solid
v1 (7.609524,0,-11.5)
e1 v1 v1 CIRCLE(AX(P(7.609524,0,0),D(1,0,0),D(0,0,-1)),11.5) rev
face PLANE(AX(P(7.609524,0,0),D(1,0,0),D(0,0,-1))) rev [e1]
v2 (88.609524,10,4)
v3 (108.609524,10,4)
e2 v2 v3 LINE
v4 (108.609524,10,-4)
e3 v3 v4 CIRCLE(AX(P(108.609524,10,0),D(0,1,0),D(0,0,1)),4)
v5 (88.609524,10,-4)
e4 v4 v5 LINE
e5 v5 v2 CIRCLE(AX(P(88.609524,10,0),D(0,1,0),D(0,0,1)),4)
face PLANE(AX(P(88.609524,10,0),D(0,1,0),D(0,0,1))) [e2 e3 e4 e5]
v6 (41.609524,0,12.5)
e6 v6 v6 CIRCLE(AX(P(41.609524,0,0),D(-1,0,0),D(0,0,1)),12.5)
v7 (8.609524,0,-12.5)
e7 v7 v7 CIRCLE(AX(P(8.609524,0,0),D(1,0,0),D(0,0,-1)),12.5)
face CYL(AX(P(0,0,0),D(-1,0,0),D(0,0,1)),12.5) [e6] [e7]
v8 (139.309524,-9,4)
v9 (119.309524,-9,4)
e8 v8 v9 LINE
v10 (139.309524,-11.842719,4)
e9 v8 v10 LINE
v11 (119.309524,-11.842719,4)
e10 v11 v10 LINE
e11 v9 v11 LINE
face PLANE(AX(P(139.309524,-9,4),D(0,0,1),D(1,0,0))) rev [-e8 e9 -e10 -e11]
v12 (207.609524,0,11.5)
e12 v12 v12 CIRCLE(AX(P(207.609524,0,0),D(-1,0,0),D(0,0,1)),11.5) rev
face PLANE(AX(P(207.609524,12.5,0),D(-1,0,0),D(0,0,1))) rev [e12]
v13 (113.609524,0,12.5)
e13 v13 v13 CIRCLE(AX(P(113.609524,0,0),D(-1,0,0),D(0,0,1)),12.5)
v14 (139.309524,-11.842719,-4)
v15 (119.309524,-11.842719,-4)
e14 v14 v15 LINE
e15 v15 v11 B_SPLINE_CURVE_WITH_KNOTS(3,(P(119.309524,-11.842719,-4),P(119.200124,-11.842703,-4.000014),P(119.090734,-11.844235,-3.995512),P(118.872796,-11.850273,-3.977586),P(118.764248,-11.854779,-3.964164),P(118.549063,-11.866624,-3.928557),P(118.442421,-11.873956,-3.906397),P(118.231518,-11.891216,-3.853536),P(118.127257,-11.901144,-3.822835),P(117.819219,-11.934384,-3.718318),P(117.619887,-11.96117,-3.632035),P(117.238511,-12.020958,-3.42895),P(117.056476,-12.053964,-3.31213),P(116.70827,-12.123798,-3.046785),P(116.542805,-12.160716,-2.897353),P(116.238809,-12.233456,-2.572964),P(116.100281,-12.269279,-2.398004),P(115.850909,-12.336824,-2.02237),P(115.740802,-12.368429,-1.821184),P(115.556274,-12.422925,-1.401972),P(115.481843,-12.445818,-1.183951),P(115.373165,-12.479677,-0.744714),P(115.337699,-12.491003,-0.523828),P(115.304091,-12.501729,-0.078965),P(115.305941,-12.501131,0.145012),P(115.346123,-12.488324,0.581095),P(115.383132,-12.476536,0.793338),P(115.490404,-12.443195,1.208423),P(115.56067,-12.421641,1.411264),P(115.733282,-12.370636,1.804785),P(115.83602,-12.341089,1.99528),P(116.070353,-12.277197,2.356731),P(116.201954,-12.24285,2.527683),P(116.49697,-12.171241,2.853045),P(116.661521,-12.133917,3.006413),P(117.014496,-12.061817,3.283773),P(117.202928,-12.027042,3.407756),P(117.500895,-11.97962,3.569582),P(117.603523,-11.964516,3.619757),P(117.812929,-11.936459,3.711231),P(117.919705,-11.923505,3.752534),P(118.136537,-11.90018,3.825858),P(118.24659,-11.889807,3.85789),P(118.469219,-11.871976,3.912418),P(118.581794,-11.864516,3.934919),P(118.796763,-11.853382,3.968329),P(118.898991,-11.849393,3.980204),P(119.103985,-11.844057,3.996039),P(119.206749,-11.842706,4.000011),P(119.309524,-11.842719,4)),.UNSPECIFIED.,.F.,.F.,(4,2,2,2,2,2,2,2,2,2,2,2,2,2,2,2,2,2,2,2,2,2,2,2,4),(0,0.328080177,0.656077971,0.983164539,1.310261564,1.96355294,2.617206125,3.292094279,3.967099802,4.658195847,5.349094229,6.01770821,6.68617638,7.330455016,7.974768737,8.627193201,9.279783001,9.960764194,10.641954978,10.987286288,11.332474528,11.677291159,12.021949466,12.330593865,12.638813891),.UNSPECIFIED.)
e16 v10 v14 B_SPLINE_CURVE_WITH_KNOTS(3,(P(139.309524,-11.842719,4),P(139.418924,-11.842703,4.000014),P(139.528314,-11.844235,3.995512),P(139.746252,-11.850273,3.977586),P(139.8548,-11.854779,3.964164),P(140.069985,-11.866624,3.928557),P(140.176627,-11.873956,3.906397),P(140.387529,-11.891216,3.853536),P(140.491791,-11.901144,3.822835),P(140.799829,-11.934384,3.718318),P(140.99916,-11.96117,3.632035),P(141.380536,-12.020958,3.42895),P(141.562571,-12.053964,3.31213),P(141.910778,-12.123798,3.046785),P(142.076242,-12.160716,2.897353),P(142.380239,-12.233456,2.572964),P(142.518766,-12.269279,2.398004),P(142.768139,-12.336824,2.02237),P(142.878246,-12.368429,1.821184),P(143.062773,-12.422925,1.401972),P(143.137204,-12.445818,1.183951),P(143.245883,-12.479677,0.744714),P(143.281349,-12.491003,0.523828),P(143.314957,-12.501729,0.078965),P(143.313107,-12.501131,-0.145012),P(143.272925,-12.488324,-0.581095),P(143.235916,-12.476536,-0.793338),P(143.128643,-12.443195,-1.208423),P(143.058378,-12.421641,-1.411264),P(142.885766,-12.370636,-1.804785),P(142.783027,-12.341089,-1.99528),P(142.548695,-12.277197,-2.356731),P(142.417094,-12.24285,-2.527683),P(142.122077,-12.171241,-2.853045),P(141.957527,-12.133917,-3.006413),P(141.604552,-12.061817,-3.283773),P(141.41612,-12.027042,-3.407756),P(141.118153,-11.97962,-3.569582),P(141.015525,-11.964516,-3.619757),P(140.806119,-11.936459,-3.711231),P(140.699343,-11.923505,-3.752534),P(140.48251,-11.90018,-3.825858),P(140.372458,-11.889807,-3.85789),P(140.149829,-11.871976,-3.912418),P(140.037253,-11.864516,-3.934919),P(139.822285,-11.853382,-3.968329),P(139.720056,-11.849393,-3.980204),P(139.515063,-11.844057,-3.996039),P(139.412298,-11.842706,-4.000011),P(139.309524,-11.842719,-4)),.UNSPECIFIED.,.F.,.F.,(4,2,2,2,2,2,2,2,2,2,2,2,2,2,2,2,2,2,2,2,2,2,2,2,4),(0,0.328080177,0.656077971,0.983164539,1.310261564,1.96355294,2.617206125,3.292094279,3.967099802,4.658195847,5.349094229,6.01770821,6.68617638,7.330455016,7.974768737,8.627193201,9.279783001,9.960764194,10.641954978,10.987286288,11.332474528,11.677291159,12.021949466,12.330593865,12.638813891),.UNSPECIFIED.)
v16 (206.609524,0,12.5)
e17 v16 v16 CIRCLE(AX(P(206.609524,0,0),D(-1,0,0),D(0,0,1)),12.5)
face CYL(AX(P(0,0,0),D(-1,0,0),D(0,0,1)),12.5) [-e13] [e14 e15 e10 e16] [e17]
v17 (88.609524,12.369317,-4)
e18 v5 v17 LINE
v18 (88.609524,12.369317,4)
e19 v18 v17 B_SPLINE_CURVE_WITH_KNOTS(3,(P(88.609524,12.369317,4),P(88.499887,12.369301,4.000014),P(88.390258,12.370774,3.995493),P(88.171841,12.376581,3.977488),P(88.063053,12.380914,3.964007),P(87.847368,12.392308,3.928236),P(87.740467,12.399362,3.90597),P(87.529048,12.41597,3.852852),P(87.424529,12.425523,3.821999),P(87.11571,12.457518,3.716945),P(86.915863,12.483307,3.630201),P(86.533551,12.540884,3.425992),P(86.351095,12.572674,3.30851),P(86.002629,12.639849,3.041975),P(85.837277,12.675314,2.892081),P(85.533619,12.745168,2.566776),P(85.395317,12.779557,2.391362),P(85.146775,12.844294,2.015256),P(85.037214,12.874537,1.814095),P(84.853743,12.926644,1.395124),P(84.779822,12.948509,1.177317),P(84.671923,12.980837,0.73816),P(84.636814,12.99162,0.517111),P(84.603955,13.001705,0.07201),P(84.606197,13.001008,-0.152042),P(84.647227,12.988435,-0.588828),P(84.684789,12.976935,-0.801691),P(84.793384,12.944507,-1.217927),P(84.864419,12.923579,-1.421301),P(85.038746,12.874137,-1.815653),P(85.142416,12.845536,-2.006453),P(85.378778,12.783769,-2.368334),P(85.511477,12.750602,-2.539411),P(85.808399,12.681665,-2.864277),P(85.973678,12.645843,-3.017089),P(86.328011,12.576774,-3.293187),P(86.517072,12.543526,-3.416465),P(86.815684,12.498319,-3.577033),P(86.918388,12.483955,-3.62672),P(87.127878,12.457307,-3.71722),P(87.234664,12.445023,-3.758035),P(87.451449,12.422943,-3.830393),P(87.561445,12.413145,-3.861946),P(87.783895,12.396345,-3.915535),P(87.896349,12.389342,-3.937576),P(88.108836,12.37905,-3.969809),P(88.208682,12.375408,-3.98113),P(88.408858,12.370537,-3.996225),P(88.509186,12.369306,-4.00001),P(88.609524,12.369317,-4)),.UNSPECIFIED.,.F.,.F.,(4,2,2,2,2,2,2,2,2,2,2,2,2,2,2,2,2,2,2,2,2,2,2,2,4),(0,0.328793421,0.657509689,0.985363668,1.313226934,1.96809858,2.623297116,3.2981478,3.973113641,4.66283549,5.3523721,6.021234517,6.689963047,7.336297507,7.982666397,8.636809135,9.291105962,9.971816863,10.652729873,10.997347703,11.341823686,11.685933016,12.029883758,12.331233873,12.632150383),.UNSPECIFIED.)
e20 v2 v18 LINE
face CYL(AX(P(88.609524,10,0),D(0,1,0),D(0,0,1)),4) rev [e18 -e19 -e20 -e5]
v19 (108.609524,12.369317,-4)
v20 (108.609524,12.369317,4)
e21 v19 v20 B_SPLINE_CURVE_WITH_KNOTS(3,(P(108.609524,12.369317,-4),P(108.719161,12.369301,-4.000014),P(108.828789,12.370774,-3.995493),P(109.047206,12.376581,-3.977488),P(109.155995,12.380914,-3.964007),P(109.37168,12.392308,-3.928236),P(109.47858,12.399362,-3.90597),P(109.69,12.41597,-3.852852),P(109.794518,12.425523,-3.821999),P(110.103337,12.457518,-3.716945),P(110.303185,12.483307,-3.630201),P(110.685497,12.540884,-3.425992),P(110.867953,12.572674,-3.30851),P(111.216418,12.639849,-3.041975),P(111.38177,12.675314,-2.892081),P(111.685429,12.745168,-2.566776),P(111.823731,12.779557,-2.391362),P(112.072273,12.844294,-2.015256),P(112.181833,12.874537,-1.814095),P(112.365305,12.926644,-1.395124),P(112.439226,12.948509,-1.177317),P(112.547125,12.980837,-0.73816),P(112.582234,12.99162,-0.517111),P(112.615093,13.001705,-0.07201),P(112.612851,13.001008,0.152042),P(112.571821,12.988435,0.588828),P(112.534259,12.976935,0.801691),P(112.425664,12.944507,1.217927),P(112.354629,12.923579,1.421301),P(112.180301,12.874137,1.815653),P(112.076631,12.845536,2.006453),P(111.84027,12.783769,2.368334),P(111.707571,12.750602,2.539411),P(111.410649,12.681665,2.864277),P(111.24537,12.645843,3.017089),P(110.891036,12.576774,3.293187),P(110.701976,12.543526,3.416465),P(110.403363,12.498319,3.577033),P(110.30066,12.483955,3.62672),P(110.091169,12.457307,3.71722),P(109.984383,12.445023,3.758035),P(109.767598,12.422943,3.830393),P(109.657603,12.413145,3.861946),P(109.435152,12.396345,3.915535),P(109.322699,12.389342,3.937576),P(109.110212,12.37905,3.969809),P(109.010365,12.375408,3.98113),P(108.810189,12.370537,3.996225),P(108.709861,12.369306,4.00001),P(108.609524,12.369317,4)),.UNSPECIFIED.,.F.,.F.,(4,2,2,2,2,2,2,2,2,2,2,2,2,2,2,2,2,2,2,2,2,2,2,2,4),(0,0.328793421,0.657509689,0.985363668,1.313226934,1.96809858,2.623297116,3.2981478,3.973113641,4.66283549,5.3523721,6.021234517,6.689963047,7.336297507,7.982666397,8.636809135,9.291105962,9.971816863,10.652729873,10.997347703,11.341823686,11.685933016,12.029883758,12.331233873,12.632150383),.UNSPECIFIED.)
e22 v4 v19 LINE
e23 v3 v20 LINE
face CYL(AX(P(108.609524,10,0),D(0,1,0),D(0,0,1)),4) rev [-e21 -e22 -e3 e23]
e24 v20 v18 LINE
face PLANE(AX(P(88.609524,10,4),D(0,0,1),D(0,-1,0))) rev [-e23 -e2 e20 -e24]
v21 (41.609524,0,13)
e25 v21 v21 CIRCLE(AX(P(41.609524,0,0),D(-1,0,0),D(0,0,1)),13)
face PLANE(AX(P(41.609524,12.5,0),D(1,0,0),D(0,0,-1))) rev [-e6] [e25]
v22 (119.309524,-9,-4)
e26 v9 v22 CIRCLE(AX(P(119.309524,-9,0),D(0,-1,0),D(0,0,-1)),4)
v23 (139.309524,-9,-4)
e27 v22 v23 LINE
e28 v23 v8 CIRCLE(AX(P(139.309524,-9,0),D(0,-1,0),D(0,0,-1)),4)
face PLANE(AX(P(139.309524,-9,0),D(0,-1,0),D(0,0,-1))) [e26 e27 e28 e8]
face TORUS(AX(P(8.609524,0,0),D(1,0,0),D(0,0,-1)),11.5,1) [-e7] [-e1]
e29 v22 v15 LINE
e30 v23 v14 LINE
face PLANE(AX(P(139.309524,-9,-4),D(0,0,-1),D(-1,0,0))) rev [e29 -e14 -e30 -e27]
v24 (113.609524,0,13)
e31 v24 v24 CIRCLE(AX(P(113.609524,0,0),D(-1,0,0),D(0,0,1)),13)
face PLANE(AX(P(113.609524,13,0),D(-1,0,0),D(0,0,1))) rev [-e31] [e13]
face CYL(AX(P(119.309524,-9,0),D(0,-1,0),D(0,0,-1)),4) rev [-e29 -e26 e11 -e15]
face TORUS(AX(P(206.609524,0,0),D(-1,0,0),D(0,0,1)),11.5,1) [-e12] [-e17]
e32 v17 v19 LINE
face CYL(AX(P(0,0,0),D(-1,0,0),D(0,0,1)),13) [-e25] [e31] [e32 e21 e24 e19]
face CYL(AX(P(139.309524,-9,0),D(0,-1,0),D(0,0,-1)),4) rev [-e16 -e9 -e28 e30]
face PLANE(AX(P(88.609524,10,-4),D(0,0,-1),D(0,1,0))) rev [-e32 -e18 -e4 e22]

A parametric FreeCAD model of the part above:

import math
import FreeCAD as App
import Part
import Sketcher


def edges_at(feature, points):
    """Names of the edges that pass closest to the given points."""
    edges = feature.Shape.Edges
    near = lambda p: min(range(len(edges)), key=lambda i: edges[i].distToShape(Part.Vertex(*p))[0])
    return sorted({f"Edge{near(p) + 1}" for p in points})

doc = App.newDocument("Part")
params = doc.addObject("Spreadsheet::Sheet", "Params")
for row, (alias, value) in enumerate([
    ("sketch1_width", "200 mm"),
    ("sketch1_width2", "94 mm"),
    ("sketch1_width3", "72 mm"),
    ("sketch1_height", "12.5 mm"),
    ("sketch1_height2", "0.5 mm"),
    ("revolution_angle", "360 deg"),
    ("sketch2_radius", "4 mm"),
    ("sketch2_width", "20 mm"),
    ("pocket1_length", "3.5 mm"),
    ("fillet_radius", "1 mm"),
    ("fillet2_radius", "1 mm"),
    ("sketch3_radius", "4 mm"),
    ("sketch3_width", "20 mm"),
    ("pocket2_length", "3 mm"),
], start=1):
    params.set(f"A{row}", alias)
    params.set(f"B{row}", "=" + value)
    params.setAlias(f"B{row}", alias)

body = doc.addObject("PartDesign::Body", "Body")

sketch1 = body.newObject("Sketcher::SketchObject", "Sketch")
sketch1.AttachmentSupport = (doc.getObject("XY_Plane"), [""])
sketch1.MapMode = "FlatFace"
sketch1.addGeometry([
    Part.LineSegment(App.Vector(7.6, 12.5, 0), App.Vector(7.6, 0, 0)),
    Part.LineSegment(App.Vector(7.6, 0, 0), App.Vector(207.6, 0, 0)),
    Part.LineSegment(App.Vector(207.6, 0, 0), App.Vector(207.6, 12.5, 0)),
    Part.LineSegment(App.Vector(207.6, 12.5, 0), App.Vector(113.6, 12.5, 0)),
    Part.LineSegment(App.Vector(113.6, 12.5, 0), App.Vector(113.6, 13, 0)),
    Part.LineSegment(App.Vector(113.6, 13, 0), App.Vector(41.6, 13, 0)),
    Part.LineSegment(App.Vector(41.6, 13, 0), App.Vector(41.6, 12.5, 0)),
    Part.LineSegment(App.Vector(41.6, 12.5, 0), App.Vector(7.6, 12.5, 0)),
], False)
sketch1.addConstraint([
    Sketcher.Constraint("Coincident", 0, 2, 1, 1),
    Sketcher.Constraint("Coincident", 1, 2, 2, 1),
    Sketcher.Constraint("Coincident", 2, 2, 3, 1),
    Sketcher.Constraint("Coincident", 3, 2, 4, 1),
    Sketcher.Constraint("Coincident", 4, 2, 5, 1),
    Sketcher.Constraint("Coincident", 5, 2, 6, 1),
    Sketcher.Constraint("Coincident", 6, 2, 7, 1),
    Sketcher.Constraint("Coincident", 7, 2, 0, 1),
    Sketcher.Constraint("Vertical", 0),
    Sketcher.Constraint("Horizontal", 1),
    Sketcher.Constraint("Vertical", 2),
    Sketcher.Constraint("Horizontal", 3),
    Sketcher.Constraint("Vertical", 4),
    Sketcher.Constraint("Horizontal", 5),
    Sketcher.Constraint("Vertical", 6),
    Sketcher.Constraint("Horizontal", 7),
    Sketcher.Constraint("PointOnObject", 0, 2, -1),
    Sketcher.Constraint("Horizontal", 3, 2, 6, 2),
    Sketcher.Constraint("DistanceX", 1, 1, 1, 2, 200.0),
    Sketcher.Constraint("DistanceX", 3, 2, 3, 1, 94.0),
    Sketcher.Constraint("DistanceX", 5, 2, 5, 1, 72.0),
    Sketcher.Constraint("DistanceY", 0, 2, 0, 1, 12.5),
    Sketcher.Constraint("DistanceY", 4, 1, 4, 2, 0.5),
    Sketcher.Constraint("DistanceX", -1, 1, 0, 2, 7.609524),
])
sketch1.setExpression("Constraints[18]", "Params.sketch1_width")
sketch1.setExpression("Constraints[19]", "Params.sketch1_width2")
sketch1.setExpression("Constraints[20]", "Params.sketch1_width3")
sketch1.setExpression("Constraints[21]", "Params.sketch1_height")
sketch1.setExpression("Constraints[22]", "Params.sketch1_height2")
revolution = body.newObject("PartDesign::Revolution", "Revolution")
revolution.Profile = sketch1
revolution.ReferenceAxis = (sketch1, ["H_Axis"])
revolution.setExpression("Angle", "Params.revolution_angle")

sketch2 = body.newObject("Sketcher::SketchObject", "Sketch001")
sketch2.AttachmentSupport = (doc.getObject("XZ_Plane"), [""])
sketch2.MapMode = "FlatFace"
sketch2.AttachmentOffset = App.Placement(App.Vector(0, 0, 12.5), App.Rotation())
sketch2.addGeometry([
    Part.LineSegment(App.Vector(119.3, -4, 0), App.Vector(139.3, -4, 0)),
    Part.ArcOfCircle(Part.Circle(App.Vector(139.3, 0, 0), App.Vector(0, 0, 1), 4), math.radians(-90), math.radians(90)),
    Part.LineSegment(App.Vector(139.3, 4, 0), App.Vector(119.3, 4, 0)),
    Part.ArcOfCircle(Part.Circle(App.Vector(119.3, 0, 0), App.Vector(0, 0, 1), 4), math.radians(90), math.radians(270)),
], False)
sketch2.addConstraint([
    Sketcher.Constraint("Tangent", 0, 2, 1, 1),
    Sketcher.Constraint("Tangent", 1, 2, 2, 1),
    Sketcher.Constraint("Tangent", 2, 2, 3, 1),
    Sketcher.Constraint("Tangent", 3, 2, 0, 1),
    Sketcher.Constraint("Horizontal", 0),
    Sketcher.Constraint("Horizontal", 2),
    Sketcher.Constraint("PointOnObject", 1, 3, -1),
    Sketcher.Constraint("Radius", 1, 4.0),
    Sketcher.Constraint("DistanceX", 0, 1, 0, 2, 20.0),
    Sketcher.Constraint("DistanceX", -1, 1, 1, 3, 139.309524),
])
sketch2.setExpression("Constraints[7]", "Params.sketch2_radius")
sketch2.setExpression("Constraints[8]", "Params.sketch2_width")
pocket1 = body.newObject("PartDesign::Pocket", "Pocket")
pocket1.Profile = sketch2
pocket1.setExpression("Length", "Params.pocket1_length")
doc.recompute()

fillet = body.newObject("PartDesign::Fillet", "Fillet")
fillet.Base = (pocket1, edges_at(pocket1, [(207.61, 0, -12.5)]))
fillet.setExpression("Radius", "Params.fillet_radius")
doc.recompute()

fillet2 = body.newObject("PartDesign::Fillet", "Fillet001")
fillet2.Base = (fillet, edges_at(fillet, [(7.61, 0, -12.5)]))
fillet2.setExpression("Radius", "Params.fillet2_radius")

sketch3 = body.newObject("Sketcher::SketchObject", "Sketch002")
sketch3.AttachmentSupport = (doc.getObject("XZ_Plane"), [""])
sketch3.MapMode = "FlatFace"
sketch3.AttachmentOffset = App.Placement(App.Vector(0, 0, -13), App.Rotation())
sketch3.addGeometry([
    Part.LineSegment(App.Vector(108.6, -4, 0), App.Vector(88.6, -4, 0)),
    Part.ArcOfCircle(Part.Circle(App.Vector(88.6, 0, 0), App.Vector(0, 0, 1), 4), math.radians(90), math.radians(270)),
    Part.LineSegment(App.Vector(88.6, 4, 0), App.Vector(108.6, 4, 0)),
    Part.ArcOfCircle(Part.Circle(App.Vector(108.6, 0, 0), App.Vector(0, 0, 1), 4), math.radians(-90), math.radians(90)),
], False)
sketch3.addConstraint([
    Sketcher.Constraint("Tangent", 0, 2, 1, 2),
    Sketcher.Constraint("Tangent", 1, 1, 2, 1),
    Sketcher.Constraint("Tangent", 2, 2, 3, 2),
    Sketcher.Constraint("Tangent", 3, 1, 0, 1),
    Sketcher.Constraint("Horizontal", 0),
    Sketcher.Constraint("Horizontal", 2),
    Sketcher.Constraint("PointOnObject", 1, 3, -1),
    Sketcher.Constraint("Radius", 1, 4.0),
    Sketcher.Constraint("DistanceX", 0, 2, 0, 1, 20.0),
    Sketcher.Constraint("DistanceX", -1, 1, 1, 3, 88.609524),
])
sketch3.setExpression("Constraints[7]", "Params.sketch3_radius")
sketch3.setExpression("Constraints[8]", "Params.sketch3_width")
pocket2 = body.newObject("PartDesign::Pocket", "Pocket001")
pocket2.Profile = sketch3
pocket2.setExpression("Length", "Params.pocket2_length")
pocket2.Reversed = True

doc.recompute()
